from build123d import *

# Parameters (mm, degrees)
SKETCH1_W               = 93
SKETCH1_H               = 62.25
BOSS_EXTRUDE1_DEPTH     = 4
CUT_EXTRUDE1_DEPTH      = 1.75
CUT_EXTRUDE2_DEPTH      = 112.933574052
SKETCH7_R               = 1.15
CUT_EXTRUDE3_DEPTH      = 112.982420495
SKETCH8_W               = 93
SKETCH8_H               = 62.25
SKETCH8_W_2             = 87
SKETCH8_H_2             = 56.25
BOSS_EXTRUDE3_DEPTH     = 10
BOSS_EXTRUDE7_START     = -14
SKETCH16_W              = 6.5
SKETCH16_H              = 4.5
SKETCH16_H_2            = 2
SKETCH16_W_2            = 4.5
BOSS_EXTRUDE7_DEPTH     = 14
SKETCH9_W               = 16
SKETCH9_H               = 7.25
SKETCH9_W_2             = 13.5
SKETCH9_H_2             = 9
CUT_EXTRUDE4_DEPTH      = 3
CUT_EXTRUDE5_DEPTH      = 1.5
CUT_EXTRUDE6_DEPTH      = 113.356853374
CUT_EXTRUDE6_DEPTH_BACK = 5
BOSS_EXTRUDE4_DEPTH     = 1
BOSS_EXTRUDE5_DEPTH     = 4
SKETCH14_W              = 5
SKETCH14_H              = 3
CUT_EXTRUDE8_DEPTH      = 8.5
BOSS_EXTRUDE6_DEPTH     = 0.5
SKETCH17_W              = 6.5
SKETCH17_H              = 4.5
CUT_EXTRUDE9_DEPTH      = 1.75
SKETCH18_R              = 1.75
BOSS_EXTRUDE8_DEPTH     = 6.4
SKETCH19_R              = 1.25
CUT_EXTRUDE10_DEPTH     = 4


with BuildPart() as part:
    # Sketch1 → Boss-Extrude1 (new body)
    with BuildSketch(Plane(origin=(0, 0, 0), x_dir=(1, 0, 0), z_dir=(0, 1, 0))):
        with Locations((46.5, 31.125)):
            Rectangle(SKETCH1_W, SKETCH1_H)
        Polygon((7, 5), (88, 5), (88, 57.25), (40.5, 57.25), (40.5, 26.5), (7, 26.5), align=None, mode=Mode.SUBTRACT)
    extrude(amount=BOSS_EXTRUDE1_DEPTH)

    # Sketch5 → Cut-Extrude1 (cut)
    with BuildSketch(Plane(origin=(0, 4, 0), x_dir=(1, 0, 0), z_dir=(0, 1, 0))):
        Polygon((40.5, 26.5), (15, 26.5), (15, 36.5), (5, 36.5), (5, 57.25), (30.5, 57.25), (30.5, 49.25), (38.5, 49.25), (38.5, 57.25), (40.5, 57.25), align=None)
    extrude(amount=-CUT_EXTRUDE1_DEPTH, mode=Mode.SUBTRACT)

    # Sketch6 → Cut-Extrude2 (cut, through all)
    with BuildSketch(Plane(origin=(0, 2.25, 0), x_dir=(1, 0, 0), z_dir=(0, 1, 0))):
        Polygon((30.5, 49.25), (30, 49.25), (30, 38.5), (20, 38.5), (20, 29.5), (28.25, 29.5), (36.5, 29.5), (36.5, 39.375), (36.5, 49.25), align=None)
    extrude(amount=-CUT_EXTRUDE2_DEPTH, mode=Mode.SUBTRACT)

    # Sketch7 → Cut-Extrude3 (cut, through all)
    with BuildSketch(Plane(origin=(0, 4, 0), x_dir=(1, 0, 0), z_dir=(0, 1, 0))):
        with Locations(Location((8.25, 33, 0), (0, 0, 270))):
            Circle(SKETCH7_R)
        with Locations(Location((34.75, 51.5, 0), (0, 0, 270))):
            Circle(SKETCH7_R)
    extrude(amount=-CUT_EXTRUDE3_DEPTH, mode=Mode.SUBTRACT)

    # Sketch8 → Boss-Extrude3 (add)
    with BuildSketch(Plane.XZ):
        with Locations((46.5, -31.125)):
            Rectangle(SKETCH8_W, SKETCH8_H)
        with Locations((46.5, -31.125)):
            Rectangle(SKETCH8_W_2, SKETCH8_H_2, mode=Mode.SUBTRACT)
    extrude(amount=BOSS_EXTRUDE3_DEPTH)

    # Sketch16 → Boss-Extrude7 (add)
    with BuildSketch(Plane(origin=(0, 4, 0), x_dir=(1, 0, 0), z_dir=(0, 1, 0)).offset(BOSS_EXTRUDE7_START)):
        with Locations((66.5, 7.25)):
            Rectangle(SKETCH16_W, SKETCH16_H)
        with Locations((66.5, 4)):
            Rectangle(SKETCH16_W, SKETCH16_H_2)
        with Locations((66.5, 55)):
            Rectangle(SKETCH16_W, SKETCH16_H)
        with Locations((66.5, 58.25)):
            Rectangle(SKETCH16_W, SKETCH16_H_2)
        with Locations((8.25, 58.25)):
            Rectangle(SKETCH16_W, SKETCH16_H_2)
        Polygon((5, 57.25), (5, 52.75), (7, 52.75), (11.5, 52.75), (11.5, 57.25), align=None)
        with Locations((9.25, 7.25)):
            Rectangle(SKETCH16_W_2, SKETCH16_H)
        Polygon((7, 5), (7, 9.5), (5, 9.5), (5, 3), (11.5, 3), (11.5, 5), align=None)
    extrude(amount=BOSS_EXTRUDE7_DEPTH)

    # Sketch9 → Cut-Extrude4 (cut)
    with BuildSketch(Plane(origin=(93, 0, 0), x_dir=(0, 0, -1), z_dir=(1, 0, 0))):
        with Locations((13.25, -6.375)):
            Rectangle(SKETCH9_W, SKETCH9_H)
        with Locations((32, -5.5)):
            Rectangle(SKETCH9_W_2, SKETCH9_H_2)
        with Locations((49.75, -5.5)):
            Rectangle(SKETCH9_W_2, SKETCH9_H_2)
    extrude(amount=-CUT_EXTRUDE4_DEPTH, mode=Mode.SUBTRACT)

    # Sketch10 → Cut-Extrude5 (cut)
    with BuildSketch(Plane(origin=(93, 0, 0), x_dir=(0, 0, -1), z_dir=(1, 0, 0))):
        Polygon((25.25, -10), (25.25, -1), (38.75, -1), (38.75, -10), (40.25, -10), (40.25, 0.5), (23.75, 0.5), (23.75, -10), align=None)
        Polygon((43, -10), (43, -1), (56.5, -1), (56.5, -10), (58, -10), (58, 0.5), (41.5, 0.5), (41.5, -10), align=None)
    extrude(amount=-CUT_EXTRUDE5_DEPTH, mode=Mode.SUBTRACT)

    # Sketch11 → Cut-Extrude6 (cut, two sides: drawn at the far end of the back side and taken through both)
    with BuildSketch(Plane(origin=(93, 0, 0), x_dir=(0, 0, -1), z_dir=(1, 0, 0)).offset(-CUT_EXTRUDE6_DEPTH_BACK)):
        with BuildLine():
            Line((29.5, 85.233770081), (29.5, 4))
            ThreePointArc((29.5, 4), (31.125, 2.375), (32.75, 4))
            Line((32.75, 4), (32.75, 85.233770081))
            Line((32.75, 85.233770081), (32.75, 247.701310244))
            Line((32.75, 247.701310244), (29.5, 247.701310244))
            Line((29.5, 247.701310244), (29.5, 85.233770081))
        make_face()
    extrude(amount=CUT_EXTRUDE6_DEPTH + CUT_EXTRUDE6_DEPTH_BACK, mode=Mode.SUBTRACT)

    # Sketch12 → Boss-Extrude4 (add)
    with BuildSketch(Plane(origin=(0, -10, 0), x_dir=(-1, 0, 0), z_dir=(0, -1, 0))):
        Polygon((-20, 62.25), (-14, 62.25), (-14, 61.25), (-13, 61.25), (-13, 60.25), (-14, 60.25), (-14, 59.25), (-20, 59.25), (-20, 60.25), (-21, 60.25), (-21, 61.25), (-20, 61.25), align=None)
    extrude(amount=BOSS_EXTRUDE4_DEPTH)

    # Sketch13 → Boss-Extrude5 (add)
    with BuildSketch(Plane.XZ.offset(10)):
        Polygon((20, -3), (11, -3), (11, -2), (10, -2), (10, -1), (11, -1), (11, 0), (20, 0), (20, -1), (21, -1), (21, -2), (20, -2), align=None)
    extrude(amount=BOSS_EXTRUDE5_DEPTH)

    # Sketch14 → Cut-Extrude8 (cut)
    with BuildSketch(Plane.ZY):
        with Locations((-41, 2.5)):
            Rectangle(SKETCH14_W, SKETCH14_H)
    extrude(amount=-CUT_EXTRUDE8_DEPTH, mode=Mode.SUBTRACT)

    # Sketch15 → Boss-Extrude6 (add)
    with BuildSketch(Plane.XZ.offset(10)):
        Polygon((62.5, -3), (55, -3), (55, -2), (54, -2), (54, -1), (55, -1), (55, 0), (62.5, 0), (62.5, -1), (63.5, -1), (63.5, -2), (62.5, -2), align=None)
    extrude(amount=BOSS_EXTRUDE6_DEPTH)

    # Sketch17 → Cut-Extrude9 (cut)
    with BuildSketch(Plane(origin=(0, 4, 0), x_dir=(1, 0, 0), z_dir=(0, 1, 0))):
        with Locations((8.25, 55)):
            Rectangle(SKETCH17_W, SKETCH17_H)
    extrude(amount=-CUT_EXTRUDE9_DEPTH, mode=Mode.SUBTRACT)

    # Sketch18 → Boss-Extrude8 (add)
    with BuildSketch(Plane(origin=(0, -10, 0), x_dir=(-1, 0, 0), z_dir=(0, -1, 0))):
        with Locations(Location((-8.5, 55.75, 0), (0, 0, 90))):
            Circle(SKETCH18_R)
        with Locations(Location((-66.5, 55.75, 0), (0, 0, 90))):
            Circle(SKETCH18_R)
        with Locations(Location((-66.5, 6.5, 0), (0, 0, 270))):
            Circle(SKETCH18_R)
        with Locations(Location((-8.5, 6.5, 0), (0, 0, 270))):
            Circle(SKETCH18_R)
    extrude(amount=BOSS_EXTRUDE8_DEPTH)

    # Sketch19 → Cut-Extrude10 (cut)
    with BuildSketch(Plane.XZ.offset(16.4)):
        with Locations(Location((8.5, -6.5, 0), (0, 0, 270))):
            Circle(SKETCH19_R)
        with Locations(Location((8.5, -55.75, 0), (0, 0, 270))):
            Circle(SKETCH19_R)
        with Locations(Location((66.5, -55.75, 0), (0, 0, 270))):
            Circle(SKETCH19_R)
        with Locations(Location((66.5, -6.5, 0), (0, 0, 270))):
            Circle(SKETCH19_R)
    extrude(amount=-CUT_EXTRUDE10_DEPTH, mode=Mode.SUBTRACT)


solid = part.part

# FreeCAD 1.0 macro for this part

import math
import FreeCAD as App
import Part
import Sketcher

V = App.Vector

doc = App.newDocument("Part")
body = doc.addObject("PartDesign::Body", "Body")

sketch1 = body.newObject("Sketcher::SketchObject", "Sketch")
sketch1.AttachmentSupport = (doc.getObject("XZ_Plane"), [""])
sketch1.MapMode = "FlatFace"
sketch1.addGeometry([
    Part.LineSegment(V(0, -62, 0), V(0, 0, 0)),
    Part.LineSegment(V(0, 0, 0), V(93, 0, 0)),
    Part.LineSegment(V(93, 0, 0), V(93, -62, 0)),
    Part.LineSegment(V(93, -62, 0), V(0, -62, 0)),
    Part.LineSegment(V(88, -5, 0), V(7, -5, 0)),
    Part.LineSegment(V(7, -5, 0), V(7, -26, 0)),
    Part.LineSegment(V(7, -26, 0), V(40, -26, 0)),
    Part.LineSegment(V(40, -26, 0), V(40, -57, 0)),
    Part.LineSegment(V(40, -57, 0), V(88, -57, 0)),
    Part.LineSegment(V(88, -57, 0), V(88, -5, 0)),
], False)
sketch1.addConstraint([
    Sketcher.Constraint("Coincident", 0, 2, 1, 1),
    Sketcher.Constraint("Coincident", 1, 2, 2, 1),
    Sketcher.Constraint("Coincident", 2, 2, 3, 1),
    Sketcher.Constraint("Coincident", 3, 2, 0, 1),
    Sketcher.Constraint("Coincident", 4, 2, 5, 1),
    Sketcher.Constraint("Coincident", 5, 2, 6, 1),
    Sketcher.Constraint("Coincident", 6, 2, 7, 1),
    Sketcher.Constraint("Coincident", 7, 2, 8, 1),
    Sketcher.Constraint("Coincident", 8, 2, 9, 1),
    Sketcher.Constraint("Coincident", 9, 2, 4, 1),
    Sketcher.Constraint("Vertical", 0),
    Sketcher.Constraint("Horizontal", 1),
    Sketcher.Constraint("Vertical", 2),
    Sketcher.Constraint("Horizontal", 3),
    Sketcher.Constraint("Horizontal", 4),
    Sketcher.Constraint("Vertical", 5),
    Sketcher.Constraint("Horizontal", 6),
    Sketcher.Constraint("Vertical", 7),
    Sketcher.Constraint("Horizontal", 8),
    Sketcher.Constraint("Vertical", 9),
    Sketcher.Constraint("Coincident", 0, 2, -1, 1),
    Sketcher.Constraint("DistanceX", 1, 1, 1, 2, 93.0),
    Sketcher.Constraint("DistanceX", 4, 2, 4, 1, 81.0),
    Sketcher.Constraint("DistanceX", 6, 1, 6, 2, 33.5),
    Sketcher.Constraint("DistanceY", 5, 2, 5, 1, 21.5),
    Sketcher.Constraint("DistanceX", -1, 1, 4, 2, 7.0),
    Sketcher.Constraint("DistanceY", 4, 2, -1, 1, 5.0),
    Sketcher.Constraint("DistanceY", 3, 2, 7, 2, 5.0),
    Sketcher.Constraint("DistanceY", 0, 1, 0, 2, 62.25),
])
pad1 = body.newObject("PartDesign::Pad", "Pad")
pad1.Profile = sketch1
pad1.Length = 4
pad1.Reversed = True

sketch2 = body.newObject("Sketcher::SketchObject", "Sketch001")
sketch2.AttachmentSupport = (doc.getObject("XZ_Plane"), [""])
sketch2.MapMode = "FlatFace"
sketch2.AttachmentOffset = App.Placement(V(0, 0, -4), App.Rotation())
sketch2.addGeometry([
    Part.LineSegment(V(15, -26.5, 0), V(40.5, -26.5, 0)),
    Part.LineSegment(V(40.5, -26.5, 0), V(40.5, -57.2, 0)),
    Part.LineSegment(V(40.5, -57.2, 0), V(38.5, -57.2, 0)),
    Part.LineSegment(V(38.5, -57.2, 0), V(38.5, -49.2, 0)),
    Part.LineSegment(V(38.5, -49.2, 0), V(30.5, -49.2, 0)),
    Part.LineSegment(V(30.5, -49.2, 0), V(30.5, -57.2, 0)),
    Part.LineSegment(V(30.5, -57.2, 0), V(5, -57.2, 0)),
    Part.LineSegment(V(5, -57.2, 0), V(5, -36.5, 0)),
    Part.LineSegment(V(5, -36.5, 0), V(15, -36.5, 0)),
    Part.LineSegment(V(15, -36.5, 0), V(15, -26.5, 0)),
], False)
sketch2.addConstraint([
    Sketcher.Constraint("Coincident", 0, 2, 1, 1),
    Sketcher.Constraint("Coincident", 1, 2, 2, 1),
    Sketcher.Constraint("Coincident", 2, 2, 3, 1),
    Sketcher.Constraint("Coincident", 3, 2, 4, 1),
    Sketcher.Constraint("Coincident", 4, 2, 5, 1),
    Sketcher.Constraint("Coincident", 5, 2, 6, 1),
    Sketcher.Constraint("Coincident", 6, 2, 7, 1),
    Sketcher.Constraint("Coincident", 7, 2, 8, 1),
    Sketcher.Constraint("Coincident", 8, 2, 9, 1),
    Sketcher.Constraint("Coincident", 9, 2, 0, 1),
    Sketcher.Constraint("Horizontal", 0),
    Sketcher.Constraint("Vertical", 1),
    Sketcher.Constraint("Horizontal", 2),
    Sketcher.Constraint("Vertical", 3),
    Sketcher.Constraint("Horizontal", 4),
    Sketcher.Constraint("Vertical", 5),
    Sketcher.Constraint("Horizontal", 6),
    Sketcher.Constraint("Vertical", 7),
    Sketcher.Constraint("Horizontal", 8),
    Sketcher.Constraint("Vertical", 9),
    Sketcher.Constraint("Horizontal", 2, 2, 5, 2),
    Sketcher.Constraint("Equal", 0, 6),
    Sketcher.Constraint("Equal", 4, 3),
    Sketcher.Constraint("Equal", 8, 9),
    Sketcher.Constraint("DistanceX", 2, 2, 2, 1, 2.0),
    Sketcher.Constraint("DistanceX", 4, 2, 4, 1, 8.0),
    Sketcher.Constraint("DistanceX", 0, 1, 0, 2, 25.5),
    Sketcher.Constraint("DistanceX", -1, 1, 6, 2, 5.0),
    Sketcher.Constraint("DistanceY", 1, 2, 1, 1, 30.75),
    Sketcher.Constraint("DistanceY", 0, 2, -1, 1, 26.5),
])
pocket1 = body.newObject("PartDesign::Pocket", "Pocket")
pocket1.Profile = sketch2
pocket1.Length = 1.75
pocket1.Reversed = True

sketch3 = body.newObject("Sketcher::SketchObject", "Sketch002")
sketch3.AttachmentSupport = (doc.getObject("XZ_Plane"), [""])
sketch3.MapMode = "FlatFace"
sketch3.AttachmentOffset = App.Placement(V(0, 0, -2.25), App.Rotation())
sketch3.addGeometry([
    Part.LineSegment(V(30, -49, 0), V(30, -38, 0)),
    Part.LineSegment(V(30, -38, 0), V(20, -38, 0)),
    Part.LineSegment(V(20, -38, 0), V(20, -30, 0)),
    Part.LineSegment(V(20, -30, 0), V(36, -30, 0)),
    Part.LineSegment(V(36, -30, 0), V(36, -49, 0)),
    Part.LineSegment(V(36, -49, 0), V(30, -49, 0)),
], False)
sketch3.addConstraint([
    Sketcher.Constraint("Coincident", 0, 2, 1, 1),
    Sketcher.Constraint("Coincident", 1, 2, 2, 1),
    Sketcher.Constraint("Coincident", 2, 2, 3, 1),
    Sketcher.Constraint("Coincident", 3, 2, 4, 1),
    Sketcher.Constraint("Coincident", 4, 2, 5, 1),
    Sketcher.Constraint("Coincident", 5, 2, 0, 1),
    Sketcher.Constraint("Vertical", 0),
    Sketcher.Constraint("Horizontal", 1),
    Sketcher.Constraint("Vertical", 2),
    Sketcher.Constraint("Horizontal", 3),
    Sketcher.Constraint("Vertical", 4),
    Sketcher.Constraint("Horizontal", 5),
    Sketcher.Constraint("DistanceX", 1, 2, 1, 1, 10.0),
    Sketcher.Constraint("DistanceY", 2, 1, 2, 2, 9.0),
    Sketcher.Constraint("DistanceX", 3, 1, 3, 2, 16.5),
    Sketcher.Constraint("DistanceX", -1, 1, 0, 2, 30.0),
    Sketcher.Constraint("DistanceY", 0, 1, 0, 2, 10.75),
    Sketcher.Constraint("DistanceY", 0, 2, -1, 1, 38.5),
])
pocket2 = body.newObject("PartDesign::Pocket", "Pocket001")
pocket2.Profile = sketch3
pocket2.Type = "ThroughAll"
pocket2.Reversed = True

sketch4 = body.newObject("Sketcher::SketchObject", "Sketch003")
sketch4.AttachmentSupport = (doc.getObject("XZ_Plane"), [""])
sketch4.MapMode = "FlatFace"
sketch4.AttachmentOffset = App.Placement(V(0, 0, -4), App.Rotation())
sketch4.addGeometry([
    Part.Circle(V(8.2, -33, 0), V(0, 0, 1), 1.1),
    Part.Circle(V(34.8, -51.5, 0), V(0, 0, 1), 1.1),
], False)
sketch4.addConstraint([
    Sketcher.Constraint("Equal", 0, 1),
    Sketcher.Constraint("Diameter", 0, 2.3),
    Sketcher.Constraint("DistanceY", 0, 3, -1, 1, 33.0),
    Sketcher.Constraint("DistanceY", 1, 3, -1, 1, 51.5),
    Sketcher.Constraint("DistanceX", 0, 3, 1, 3, 26.5),
    Sketcher.Constraint("DistanceX", -1, 1, 0, 3, 8.25),
])
pocket3 = body.newObject("PartDesign::Pocket", "Pocket002")
pocket3.Profile = sketch4
pocket3.Type = "ThroughAll"
pocket3.Reversed = True

sketch5 = body.newObject("Sketcher::SketchObject", "Sketch004")
sketch5.AttachmentSupport = (doc.getObject("XZ_Plane"), [""])
sketch5.MapMode = "FlatFace"
sketch5.addGeometry([
    Part.LineSegment(V(0, 0, 0), V(0, -62, 0)),
    Part.LineSegment(V(0, -62, 0), V(93, -62, 0)),
    Part.LineSegment(V(93, -62, 0), V(93, 0, 0)),
    Part.LineSegment(V(93, 0, 0), V(0, 0, 0)),
    Part.LineSegment(V(90, -59, 0), V(3, -59, 0)),
    Part.LineSegment(V(3, -59, 0), V(3, -3, 0)),
    Part.LineSegment(V(3, -3, 0), V(90, -3, 0)),
    Part.LineSegment(V(90, -3, 0), V(90, -59, 0)),
], False)
sketch5.addConstraint([
    Sketcher.Constraint("Coincident", 0, 2, 1, 1),
    Sketcher.Constraint("Coincident", 1, 2, 2, 1),
    Sketcher.Constraint("Coincident", 2, 2, 3, 1),
    Sketcher.Constraint("Coincident", 3, 2, 0, 1),
    Sketcher.Constraint("Coincident", 4, 2, 5, 1),
    Sketcher.Constraint("Coincident", 5, 2, 6, 1),
    Sketcher.Constraint("Coincident", 6, 2, 7, 1),
    Sketcher.Constraint("Coincident", 7, 2, 4, 1),
    Sketcher.Constraint("Vertical", 0),
    Sketcher.Constraint("Horizontal", 1),
    Sketcher.Constraint("Vertical", 2),
    Sketcher.Constraint("Horizontal", 3),
    Sketcher.Constraint("Horizontal", 4),
    Sketcher.Constraint("Vertical", 5),
    Sketcher.Constraint("Horizontal", 6),
    Sketcher.Constraint("Vertical", 7),
    Sketcher.Constraint("Coincident", 3, 2, -1, 1),
    Sketcher.Constraint("DistanceX", 1, 1, 1, 2, 93.0),
    Sketcher.Constraint("DistanceX", 4, 2, 4, 1, 87.0),
    Sketcher.Constraint("DistanceX", -1, 1, 4, 2, 3.0),
    Sketcher.Constraint("DistanceY", 5, 2, -1, 1, 3.0),
    Sketcher.Constraint("DistanceY", 0, 2, 4, 2, 3.0),
    Sketcher.Constraint("DistanceY", 0, 2, 0, 1, 62.25),
])
pad2 = body.newObject("PartDesign::Pad", "Pad001")
pad2.Profile = sketch5
pad2.Length = 10

sketch6 = body.newObject("Sketcher::SketchObject", "Sketch005")
sketch6.AttachmentSupport = (doc.getObject("XZ_Plane"), [""])
sketch6.MapMode = "FlatFace"
sketch6.AttachmentOffset = App.Placement(V(0, 0, 10), App.Rotation())
sketch6.addGeometry([
    Part.LineSegment(V(63, -10, 0), V(63, -3, 0)),
    Part.LineSegment(V(63, -3, 0), V(70, -3, 0)),
    Part.LineSegment(V(70, -3, 0), V(70, -10, 0)),
    Part.LineSegment(V(70, -10, 0), V(63, -10, 0)),
    Part.LineSegment(V(63, -53, 0), V(70, -53, 0)),
    Part.LineSegment(V(70, -53, 0), V(70, -59, 0)),
    Part.LineSegment(V(70, -59, 0), V(63, -59, 0)),
    Part.LineSegment(V(63, -59, 0), V(63, -53, 0)),
    Part.LineSegment(V(5, -59, 0), V(5, -53, 0)),
    Part.LineSegment(V(5, -53, 0), V(12, -53, 0)),
    Part.LineSegment(V(12, -53, 0), V(12, -59, 0)),
    Part.LineSegment(V(12, -59, 0), V(5, -59, 0)),
    Part.LineSegment(V(12, -10, 0), V(5, -10, 0)),
    Part.LineSegment(V(5, -10, 0), V(5, -3, 0)),
    Part.LineSegment(V(5, -3, 0), V(12, -3, 0)),
    Part.LineSegment(V(12, -3, 0), V(12, -10, 0)),
], False)
sketch6.addConstraint([
    Sketcher.Constraint("Coincident", 0, 2, 1, 1),
    Sketcher.Constraint("Coincident", 1, 2, 2, 1),
    Sketcher.Constraint("Coincident", 2, 2, 3, 1),
    Sketcher.Constraint("Coincident", 3, 2, 0, 1),
    Sketcher.Constraint("Coincident", 4, 2, 5, 1),
    Sketcher.Constraint("Coincident", 5, 2, 6, 1),
    Sketcher.Constraint("Coincident", 6, 2, 7, 1),
    Sketcher.Constraint("Coincident", 7, 2, 4, 1),
    Sketcher.Constraint("Coincident", 8, 2, 9, 1),
    Sketcher.Constraint("Coincident", 9, 2, 10, 1),
    Sketcher.Constraint("Coincident", 10, 2, 11, 1),
    Sketcher.Constraint("Coincident", 11, 2, 8, 1),
    Sketcher.Constraint("Coincident", 12, 2, 13, 1),
    Sketcher.Constraint("Coincident", 13, 2, 14, 1),
    Sketcher.Constraint("Coincident", 14, 2, 15, 1),
    Sketcher.Constraint("Coincident", 15, 2, 12, 1),
    Sketcher.Constraint("Vertical", 0),
    Sketcher.Constraint("Horizontal", 1),
    Sketcher.Constraint("Vertical", 2),
    Sketcher.Constraint("Horizontal", 3),
    Sketcher.Constraint("Horizontal", 4),
    Sketcher.Constraint("Vertical", 5),
    Sketcher.Constraint("Horizontal", 6),
    Sketcher.Constraint("Vertical", 7),
    Sketcher.Constraint("Vertical", 8),
    Sketcher.Constraint("Horizontal", 9),
    Sketcher.Constraint("Vertical", 10),
    Sketcher.Constraint("Horizontal", 11),
    Sketcher.Constraint("Horizontal", 12),
    Sketcher.Constraint("Vertical", 13),
    Sketcher.Constraint("Horizontal", 14),
    Sketcher.Constraint("Vertical", 15),
    Sketcher.Constraint("Horizontal", 7, 2, 8, 2),
    Sketcher.Constraint("Horizontal", 6, 2, 10, 2),
    Sketcher.Constraint("Horizontal", 3, 2, 12, 2),
    Sketcher.Constraint("Horizontal", 1, 2, 13, 2),
    Sketcher.Constraint("Vertical", 2, 2, 4, 2),
    Sketcher.Constraint("Vertical", 3, 2, 6, 2),
    Sketcher.Constraint("Vertical", 11, 2, 12, 2),
    Sketcher.Constraint("Vertical", 10, 2, 14, 2),
    Sketcher.Constraint("Equal", 6, 9),
    Sketcher.Constraint("Equal", 14, 0),
    Sketcher.Constraint("Equal", 2, 5),
    Sketcher.Constraint("DistanceX", 1, 1, 1, 2, 6.5),
    Sketcher.Constraint("DistanceY", 0, 2, -1, 1, 3.0),
    Sketcher.Constraint("DistanceX", -1, 1, 8, 2, 5.0),
    Sketcher.Constraint("DistanceX", -1, 1, 0, 2, 63.25),
    Sketcher.Constraint("DistanceY", 4, 2, -1, 1, 52.75),
])
pad3 = body.newObject("PartDesign::Pad", "Pad002")
pad3.Profile = sketch6
pad3.Length = 14
pad3.Reversed = True

sketch7 = body.newObject("Sketcher::SketchObject", "Sketch006")
sketch7.AttachmentSupport = (doc.getObject("YZ_Plane"), [""])
sketch7.MapMode = "FlatFace"
sketch7.AttachmentOffset = App.Placement(V(0, 0, 93), App.Rotation())
sketch7.addGeometry([
    Part.LineSegment(V(-3, -5, 0), V(-10, -5, 0)),
    Part.LineSegment(V(-10, -5, 0), V(-10, -21, 0)),
    Part.LineSegment(V(-10, -21, 0), V(-3, -21, 0)),
    Part.LineSegment(V(-3, -21, 0), V(-3, -5, 0)),
    Part.LineSegment(V(-1, -25, 0), V(-10, -25, 0)),
    Part.LineSegment(V(-10, -25, 0), V(-10, -39, 0)),
    Part.LineSegment(V(-10, -39, 0), V(-1, -39, 0)),
    Part.LineSegment(V(-1, -39, 0), V(-1, -25, 0)),
    Part.LineSegment(V(-1, -43, 0), V(-10, -43, 0)),
    Part.LineSegment(V(-10, -43, 0), V(-10, -56, 0)),
    Part.LineSegment(V(-10, -56, 0), V(-1, -56, 0)),
    Part.LineSegment(V(-1, -56, 0), V(-1, -43, 0)),
], False)
sketch7.addConstraint([
    Sketcher.Constraint("Coincident", 0, 2, 1, 1),
    Sketcher.Constraint("Coincident", 1, 2, 2, 1),
    Sketcher.Constraint("Coincident", 2, 2, 3, 1),
    Sketcher.Constraint("Coincident", 3, 2, 0, 1),
    Sketcher.Constraint("Coincident", 4, 2, 5, 1),
    Sketcher.Constraint("Coincident", 5, 2, 6, 1),
    Sketcher.Constraint("Coincident", 6, 2, 7, 1),
    Sketcher.Constraint("Coincident", 7, 2, 4, 1),
    Sketcher.Constraint("Coincident", 8, 2, 9, 1),
    Sketcher.Constraint("Coincident", 9, 2, 10, 1),
    Sketcher.Constraint("Coincident", 10, 2, 11, 1),
    Sketcher.Constraint("Coincident", 11, 2, 8, 1),
    Sketcher.Constraint("Horizontal", 0),
    Sketcher.Constraint("Vertical", 1),
    Sketcher.Constraint("Horizontal", 2),
    Sketcher.Constraint("Vertical", 3),
    Sketcher.Constraint("Horizontal", 4),
    Sketcher.Constraint("Vertical", 5),
    Sketcher.Constraint("Horizontal", 6),
    Sketcher.Constraint("Vertical", 7),
    Sketcher.Constraint("Horizontal", 8),
    Sketcher.Constraint("Vertical", 9),
    Sketcher.Constraint("Horizontal", 10),
    Sketcher.Constraint("Vertical", 11),
    Sketcher.Constraint("Vertical", 1, 2, 4, 2),
    Sketcher.Constraint("Vertical", 5, 2, 8, 2),
    Sketcher.Constraint("Vertical", 7, 2, 10, 2),
    Sketcher.Constraint("Equal", 7, 9),
    Sketcher.Constraint("DistanceX", 4, 2, 4, 1, 9.0),
    Sketcher.Constraint("DistanceY", 1, 2, 1, 1, 16.0),
    Sketcher.Constraint("DistanceY", 5, 2, 5, 1, 13.5),
    Sketcher.Constraint("DistanceX", 0, 2, -1, 1, 10.0),
    Sketcher.Constraint("DistanceY", 8, 2, -1, 1, 43.0),
    Sketcher.Constraint("DistanceY", 4, 2, 1, 2, 4.0),
    Sketcher.Constraint("DistanceX", 0, 2, 0, 1, 7.25),
    Sketcher.Constraint("DistanceY", 0, 2, -1, 1, 5.25),
])
pocket4 = body.newObject("PartDesign::Pocket", "Pocket003")
pocket4.Profile = sketch7
pocket4.Length = 3

sketch8 = body.newObject("Sketcher::SketchObject", "Sketch007")
sketch8.AttachmentSupport = (doc.getObject("YZ_Plane"), [""])
sketch8.MapMode = "FlatFace"
sketch8.AttachmentOffset = App.Placement(V(0, 0, 93), App.Rotation())
sketch8.addGeometry([
    Part.LineSegment(V(-10, -25.2, 0), V(-1, -25.2, 0)),
    Part.LineSegment(V(-1, -25.2, 0), V(-1, -38.8, 0)),
    Part.LineSegment(V(-1, -38.8, 0), V(-10, -38.8, 0)),
    Part.LineSegment(V(-10, -38.8, 0), V(-10, -40.2, 0)),
    Part.LineSegment(V(-10, -40.2, 0), V(0.5, -40.2, 0)),
    Part.LineSegment(V(0.5, -40.2, 0), V(0.5, -23.8, 0)),
    Part.LineSegment(V(0.5, -23.8, 0), V(-10, -23.8, 0)),
    Part.LineSegment(V(-10, -23.8, 0), V(-10, -25.2, 0)),
    Part.LineSegment(V(-10, -43, 0), V(-1, -43, 0)),
    Part.LineSegment(V(-1, -43, 0), V(-1, -56.5, 0)),
    Part.LineSegment(V(-1, -56.5, 0), V(-10, -56.5, 0)),
    Part.LineSegment(V(-10, -56.5, 0), V(-10, -58, 0)),
    Part.LineSegment(V(-10, -58, 0), V(0.5, -58, 0)),
    Part.LineSegment(V(0.5, -58, 0), V(0.5, -41.5, 0)),
    Part.LineSegment(V(0.5, -41.5, 0), V(-10, -41.5, 0)),
    Part.LineSegment(V(-10, -41.5, 0), V(-10, -43, 0)),
], False)
sketch8.addConstraint([
    Sketcher.Constraint("Coincident", 0, 2, 1, 1),
    Sketcher.Constraint("Coincident", 1, 2, 2, 1),
    Sketcher.Constraint("Coincident", 2, 2, 3, 1),
    Sketcher.Constraint("Coincident", 3, 2, 4, 1),
    Sketcher.Constraint("Coincident", 4, 2, 5, 1),
    Sketcher.Constraint("Coincident", 5, 2, 6, 1),
    Sketcher.Constraint("Coincident", 6, 2, 7, 1),
    Sketcher.Constraint("Coincident", 7, 2, 0, 1),
    Sketcher.Constraint("Coincident", 8, 2, 9, 1),
    Sketcher.Constraint("Coincident", 9, 2, 10, 1),
    Sketcher.Constraint("Coincident", 10, 2, 11, 1),
    Sketcher.Constraint("Coincident", 11, 2, 12, 1),
    Sketcher.Constraint("Coincident", 12, 2, 13, 1),
    Sketcher.Constraint("Coincident", 13, 2, 14, 1),
    Sketcher.Constraint("Coincident", 14, 2, 15, 1),
    Sketcher.Constraint("Coincident", 15, 2, 8, 1),
    Sketcher.Constraint("Horizontal", 0),
    Sketcher.Constraint("Vertical", 1),
    Sketcher.Constraint("Horizontal", 2),
    Sketcher.Constraint("Vertical", 3),
    Sketcher.Constraint("Horizontal", 4),
    Sketcher.Constraint("Vertical", 5),
    Sketcher.Constraint("Horizontal", 6),
    Sketcher.Constraint("Vertical", 7),
    Sketcher.Constraint("Horizontal", 8),
    Sketcher.Constraint("Vertical", 9),
    Sketcher.Constraint("Horizontal", 10),
    Sketcher.Constraint("Vertical", 11),
    Sketcher.Constraint("Horizontal", 12),
    Sketcher.Constraint("Vertical", 13),
    Sketcher.Constraint("Horizontal", 14),
    Sketcher.Constraint("Vertical", 15),
    Sketcher.Constraint("Vertical", 3, 2, 6, 2),
    Sketcher.Constraint("Vertical", 1, 2, 8, 2),
    Sketcher.Constraint("Vertical", 7, 2, 10, 2),
    Sketcher.Constraint("Vertical", 5, 2, 12, 2),
    Sketcher.Constraint("Vertical", 11, 2, 14, 2),
    Sketcher.Constraint("Equal", 3, 7),
    Sketcher.Constraint("Equal", 1, 9),
    Sketcher.Constraint("Equal", 7, 11),
    Sketcher.Constraint("Equal", 5, 13),
    Sketcher.Constraint("DistanceX", 0, 1, 0, 2, 9.0),
    Sketcher.Constraint("DistanceX", 4, 1, 4, 2, 10.5),
    Sketcher.Constraint("DistanceY", 1, 2, 1, 1, 13.5),
    Sketcher.Constraint("DistanceY", 3, 2, 3, 1, 1.5),
    Sketcher.Constraint("DistanceX", 0, 2, -1, 1, 1.0),
    Sketcher.Constraint("DistanceY", 8, 2, -1, 1, 43.0),
    Sketcher.Constraint("DistanceY", 0, 2, -1, 1, 25.25),
])
pocket5 = body.newObject("PartDesign::Pocket", "Pocket004")
pocket5.Profile = sketch8
pocket5.Length = 1.5

sketch9 = body.newObject("Sketcher::SketchObject", "Sketch008")
sketch9.AttachmentSupport = (doc.getObject("YZ_Plane"), [""])
sketch9.MapMode = "FlatFace"
sketch9.AttachmentOffset = App.Placement(V(0, 0, 93), App.Rotation())
sketch9.addGeometry([
    Part.ArcOfCircle(Part.Circle(V(4, -31.1, 0), V(0, 0, 1), 1.6), math.radians(90), math.radians(270)),
    Part.LineSegment(V(4, -32.8, 0), V(247.7, -32.8, 0)),
    Part.LineSegment(V(247.7, -32.8, 0), V(247.7, -29.5, 0)),
    Part.LineSegment(V(247.7, -29.5, 0), V(4, -29.5, 0)),
], False)
sketch9.addConstraint([
    Sketcher.Constraint("Tangent", 0, 2, 1, 1),
    Sketcher.Constraint("Coincident", 1, 2, 2, 1),
    Sketcher.Constraint("Coincident", 2, 2, 3, 1),
    Sketcher.Constraint("Tangent", 3, 2, 0, 1),
    Sketcher.Constraint("Horizontal", 1),
    Sketcher.Constraint("Vertical", 2),
    Sketcher.Constraint("Horizontal", 3),
    Sketcher.Constraint("DistanceX", -1, 1, 0, 3, 4.0),
    Sketcher.Constraint("Radius", 0, 1.625),
    Sketcher.Constraint("DistanceY", 2, 2, -1, 1, 29.5),
    Sketcher.Constraint("DistanceX", 1, 1, 1, 2, 243.70131),
])
pocket6 = body.newObject("PartDesign::Pocket", "Pocket005")
pocket6.Profile = sketch9
pocket6.Type = "TwoLengths"
pocket6.Length = 113.356853
pocket6.Length2 = 5
pocket6.Reversed = True

sketch10 = body.newObject("Sketcher::SketchObject", "Sketch009")
sketch10.AttachmentSupport = (doc.getObject("XZ_Plane"), [""])
sketch10.MapMode = "FlatFace"
sketch10.AttachmentOffset = App.Placement(V(0, 0, 10), App.Rotation())
sketch10.addGeometry([
    Part.LineSegment(V(14, -62.2, 0), V(20, -62.2, 0)),
    Part.LineSegment(V(20, -62.2, 0), V(20, -61.2, 0)),
    Part.LineSegment(V(20, -61.2, 0), V(21, -61.2, 0)),
    Part.LineSegment(V(21, -61.2, 0), V(21, -60.2, 0)),
    Part.LineSegment(V(21, -60.2, 0), V(20, -60.2, 0)),
    Part.LineSegment(V(20, -60.2, 0), V(20, -59.2, 0)),
    Part.LineSegment(V(20, -59.2, 0), V(14, -59.2, 0)),
    Part.LineSegment(V(14, -59.2, 0), V(14, -60.2, 0)),
    Part.LineSegment(V(14, -60.2, 0), V(13, -60.2, 0)),
    Part.LineSegment(V(13, -60.2, 0), V(13, -61.2, 0)),
    Part.LineSegment(V(13, -61.2, 0), V(14, -61.2, 0)),
    Part.LineSegment(V(14, -61.2, 0), V(14, -62.2, 0)),
], False)
sketch10.addConstraint([
    Sketcher.Constraint("Coincident", 0, 2, 1, 1),
    Sketcher.Constraint("Coincident", 1, 2, 2, 1),
    Sketcher.Constraint("Coincident", 2, 2, 3, 1),
    Sketcher.Constraint("Coincident", 3, 2, 4, 1),
    Sketcher.Constraint("Coincident", 4, 2, 5, 1),
    Sketcher.Constraint("Coincident", 5, 2, 6, 1),
    Sketcher.Constraint("Coincident", 6, 2, 7, 1),
    Sketcher.Constraint("Coincident", 7, 2, 8, 1),
    Sketcher.Constraint("Coincident", 8, 2, 9, 1),
    Sketcher.Constraint("Coincident", 9, 2, 10, 1),
    Sketcher.Constraint("Coincident", 10, 2, 11, 1),
    Sketcher.Constraint("Coincident", 11, 2, 0, 1),
    Sketcher.Constraint("Horizontal", 0),
    Sketcher.Constraint("Vertical", 1),
    Sketcher.Constraint("Horizontal", 2),
    Sketcher.Constraint("Vertical", 3),
    Sketcher.Constraint("Horizontal", 4),
    Sketcher.Constraint("Vertical", 5),
    Sketcher.Constraint("Horizontal", 6),
    Sketcher.Constraint("Vertical", 7),
    Sketcher.Constraint("Horizontal", 8),
    Sketcher.Constraint("Vertical", 9),
    Sketcher.Constraint("Horizontal", 10),
    Sketcher.Constraint("Vertical", 11),
    Sketcher.Constraint("Horizontal", 4, 2, 7, 2),
    Sketcher.Constraint("Horizontal", 2, 2, 9, 2),
    Sketcher.Constraint("Vertical", 1, 2, 4, 2),
    Sketcher.Constraint("Vertical", 7, 2, 10, 2),
    Sketcher.Constraint("Equal", 4, 8),
    Sketcher.Constraint("Equal", 10, 1),
    Sketcher.Constraint("Equal", 1, 3),
    Sketcher.Constraint("Equal", 3, 5),
    Sketcher.Constraint("DistanceX", 0, 1, 0, 2, 6.0),
    Sketcher.Constraint("DistanceX", 2, 1, 2, 2, 1.0),
    Sketcher.Constraint("DistanceX", -1, 1, 0, 2, 20.0),
    Sketcher.Constraint("DistanceY", 0, 2, -1, 1, 62.25),
])
pad4 = body.newObject("PartDesign::Pad", "Pad003")
pad4.Profile = sketch10
pad4.Length = 1

sketch11 = body.newObject("Sketcher::SketchObject", "Sketch010")
sketch11.AttachmentSupport = (doc.getObject("XZ_Plane"), [""])
sketch11.MapMode = "FlatFace"
sketch11.AttachmentOffset = App.Placement(V(0, 0, 10), App.Rotation())
sketch11.addGeometry([
    Part.LineSegment(V(11, -3, 0), V(20, -3, 0)),
    Part.LineSegment(V(20, -3, 0), V(20, -2, 0)),
    Part.LineSegment(V(20, -2, 0), V(21, -2, 0)),
    Part.LineSegment(V(21, -2, 0), V(21, -1, 0)),
    Part.LineSegment(V(21, -1, 0), V(20, -1, 0)),
    Part.LineSegment(V(20, -1, 0), V(20, 0, 0)),
    Part.LineSegment(V(20, 0, 0), V(11, 0, 0)),
    Part.LineSegment(V(11, 0, 0), V(11, -1, 0)),
    Part.LineSegment(V(11, -1, 0), V(10, -1, 0)),
    Part.LineSegment(V(10, -1, 0), V(10, -2, 0)),
    Part.LineSegment(V(10, -2, 0), V(11, -2, 0)),
    Part.LineSegment(V(11, -2, 0), V(11, -3, 0)),
], False)
sketch11.addConstraint([
    Sketcher.Constraint("Coincident", 0, 2, 1, 1),
    Sketcher.Constraint("Coincident", 1, 2, 2, 1),
    Sketcher.Constraint("Coincident", 2, 2, 3, 1),
    Sketcher.Constraint("Coincident", 3, 2, 4, 1),
    Sketcher.Constraint("Coincident", 4, 2, 5, 1),
    Sketcher.Constraint("Coincident", 5, 2, 6, 1),
    Sketcher.Constraint("Coincident", 6, 2, 7, 1),
    Sketcher.Constraint("Coincident", 7, 2, 8, 1),
    Sketcher.Constraint("Coincident", 8, 2, 9, 1),
    Sketcher.Constraint("Coincident", 9, 2, 10, 1),
    Sketcher.Constraint("Coincident", 10, 2, 11, 1),
    Sketcher.Constraint("Coincident", 11, 2, 0, 1),
    Sketcher.Constraint("Horizontal", 0),
    Sketcher.Constraint("Vertical", 1),
    Sketcher.Constraint("Horizontal", 2),
    Sketcher.Constraint("Vertical", 3),
    Sketcher.Constraint("Horizontal", 4),
    Sketcher.Constraint("Vertical", 5),
    Sketcher.Constraint("Horizontal", 6),
    Sketcher.Constraint("Vertical", 7),
    Sketcher.Constraint("Horizontal", 8),
    Sketcher.Constraint("Vertical", 9),
    Sketcher.Constraint("Horizontal", 10),
    Sketcher.Constraint("Vertical", 11),
    Sketcher.Constraint("PointOnObject", 5, 2, -1),
    Sketcher.Constraint("Horizontal", 4, 2, 7, 2),
    Sketcher.Constraint("Horizontal", 2, 2, 9, 2),
    Sketcher.Constraint("Vertical", 1, 2, 4, 2),
    Sketcher.Constraint("Vertical", 7, 2, 10, 2),
    Sketcher.Constraint("Equal", 4, 8),
    Sketcher.Constraint("Equal", 10, 1),
    Sketcher.Constraint("Equal", 1, 3),
    Sketcher.Constraint("Equal", 3, 5),
    Sketcher.Constraint("DistanceX", 0, 1, 0, 2, 9.0),
    Sketcher.Constraint("DistanceX", 2, 1, 2, 2, 1.0),
    Sketcher.Constraint("DistanceX", -1, 1, 0, 2, 20.0),
])
pad5 = body.newObject("PartDesign::Pad", "Pad004")
pad5.Profile = sketch11
pad5.Length = 4

sketch12 = body.newObject("Sketcher::SketchObject", "Sketch011")
sketch12.AttachmentSupport = (doc.getObject("YZ_Plane"), [""])
sketch12.MapMode = "FlatFace"
sketch12.addGeometry([
    Part.LineSegment(V(4, -43.5, 0), V(1, -43.5, 0)),
    Part.LineSegment(V(1, -43.5, 0), V(1, -38.5, 0)),
    Part.LineSegment(V(1, -38.5, 0), V(4, -38.5, 0)),
    Part.LineSegment(V(4, -38.5, 0), V(4, -43.5, 0)),
], False)
sketch12.addConstraint([
    Sketcher.Constraint("Coincident", 0, 2, 1, 1),
    Sketcher.Constraint("Coincident", 1, 2, 2, 1),
    Sketcher.Constraint("Coincident", 2, 2, 3, 1),
    Sketcher.Constraint("Coincident", 3, 2, 0, 1),
    Sketcher.Constraint("Horizontal", 0),
    Sketcher.Constraint("Vertical", 1),
    Sketcher.Constraint("Horizontal", 2),
    Sketcher.Constraint("Vertical", 3),
    Sketcher.Constraint("DistanceX", 0, 2, 0, 1, 3.0),
    Sketcher.Constraint("DistanceY", 1, 1, 1, 2, 5.0),
    Sketcher.Constraint("DistanceX", -1, 1, 0, 2, 1.0),
    Sketcher.Constraint("DistanceY", 0, 2, -1, 1, 43.5),
])
pocket7 = body.newObject("PartDesign::Pocket", "Pocket006")
pocket7.Profile = sketch12
pocket7.Length = 8.5
pocket7.Reversed = True

sketch13 = body.newObject("Sketcher::SketchObject", "Sketch012")
sketch13.AttachmentSupport = (doc.getObject("XZ_Plane"), [""])
sketch13.MapMode = "FlatFace"
sketch13.AttachmentOffset = App.Placement(V(0, 0, 10), App.Rotation())
sketch13.addGeometry([
    Part.LineSegment(V(55, -3, 0), V(62.5, -3, 0)),
    Part.LineSegment(V(62.5, -3, 0), V(62.5, -2, 0)),
    Part.LineSegment(V(62.5, -2, 0), V(63.5, -2, 0)),
    Part.LineSegment(V(63.5, -2, 0), V(63.5, -1, 0)),
    Part.LineSegment(V(63.5, -1, 0), V(62.5, -1, 0)),
    Part.LineSegment(V(62.5, -1, 0), V(62.5, 0, 0)),
    Part.LineSegment(V(62.5, 0, 0), V(55, 0, 0)),
    Part.LineSegment(V(55, 0, 0), V(55, -1, 0)),
    Part.LineSegment(V(55, -1, 0), V(54, -1, 0)),
    Part.LineSegment(V(54, -1, 0), V(54, -2, 0)),
    Part.LineSegment(V(54, -2, 0), V(55, -2, 0)),
    Part.LineSegment(V(55, -2, 0), V(55, -3, 0)),
], False)
sketch13.addConstraint([
    Sketcher.Constraint("Coincident", 0, 2, 1, 1),
    Sketcher.Constraint("Coincident", 1, 2, 2, 1),
    Sketcher.Constraint("Coincident", 2, 2, 3, 1),
    Sketcher.Constraint("Coincident", 3, 2, 4, 1),
    Sketcher.Constraint("Coincident", 4, 2, 5, 1),
    Sketcher.Constraint("Coincident", 5, 2, 6, 1),
    Sketcher.Constraint("Coincident", 6, 2, 7, 1),
    Sketcher.Constraint("Coincident", 7, 2, 8, 1),
    Sketcher.Constraint("Coincident", 8, 2, 9, 1),
    Sketcher.Constraint("Coincident", 9, 2, 10, 1),
    Sketcher.Constraint("Coincident", 10, 2, 11, 1),
    Sketcher.Constraint("Coincident", 11, 2, 0, 1),
    Sketcher.Constraint("Horizontal", 0),
    Sketcher.Constraint("Vertical", 1),
    Sketcher.Constraint("Horizontal", 2),
    Sketcher.Constraint("Vertical", 3),
    Sketcher.Constraint("Horizontal", 4),
    Sketcher.Constraint("Vertical", 5),
    Sketcher.Constraint("Horizontal", 6),
    Sketcher.Constraint("Vertical", 7),
    Sketcher.Constraint("Horizontal", 8),
    Sketcher.Constraint("Vertical", 9),
    Sketcher.Constraint("Horizontal", 10),
    Sketcher.Constraint("Vertical", 11),
    Sketcher.Constraint("PointOnObject", 5, 2, -1),
    Sketcher.Constraint("Horizontal", 4, 2, 7, 2),
    Sketcher.Constraint("Horizontal", 2, 2, 9, 2),
    Sketcher.Constraint("Vertical", 1, 2, 4, 2),
    Sketcher.Constraint("Vertical", 7, 2, 10, 2),
    Sketcher.Constraint("Equal", 4, 8),
    Sketcher.Constraint("Equal", 10, 1),
    Sketcher.Constraint("Equal", 1, 3),
    Sketcher.Constraint("Equal", 3, 5),
    Sketcher.Constraint("DistanceX", 2, 1, 2, 2, 1.0),
    Sketcher.Constraint("DistanceX", 0, 1, 0, 2, 7.5),
    Sketcher.Constraint("DistanceX", -1, 1, 6, 2, 55.0),
])
pad6 = body.newObject("PartDesign::Pad", "Pad005")
pad6.Profile = sketch13
pad6.Length = 0.5

sketch14 = body.newObject("Sketcher::SketchObject", "Sketch013")
sketch14.AttachmentSupport = (doc.getObject("XZ_Plane"), [""])
sketch14.MapMode = "FlatFace"
sketch14.AttachmentOffset = App.Placement(V(0, 0, -4), App.Rotation())
sketch14.addGeometry([
    Part.LineSegment(V(5, -57.2, 0), V(5, -52.8, 0)),
    Part.LineSegment(V(5, -52.8, 0), V(11.5, -52.8, 0)),
    Part.LineSegment(V(11.5, -52.8, 0), V(11.5, -57.2, 0)),
    Part.LineSegment(V(11.5, -57.2, 0), V(5, -57.2, 0)),
], False)
sketch14.addConstraint([
    Sketcher.Constraint("Coincident", 0, 2, 1, 1),
    Sketcher.Constraint("Coincident", 1, 2, 2, 1),
    Sketcher.Constraint("Coincident", 2, 2, 3, 1),
    Sketcher.Constraint("Coincident", 3, 2, 0, 1),
    Sketcher.Constraint("Vertical", 0),
    Sketcher.Constraint("Horizontal", 1),
    Sketcher.Constraint("Vertical", 2),
    Sketcher.Constraint("Horizontal", 3),
    Sketcher.Constraint("DistanceX", 1, 1, 1, 2, 6.5),
    Sketcher.Constraint("DistanceY", 0, 1, 0, 2, 4.5),
    Sketcher.Constraint("DistanceX", -1, 1, 0, 2, 5.0),
    Sketcher.Constraint("DistanceY", 0, 2, -1, 1, 52.75),
])
pocket8 = body.newObject("PartDesign::Pocket", "Pocket007")
pocket8.Profile = sketch14
pocket8.Length = 1.75
pocket8.Reversed = True

sketch15 = body.newObject("Sketcher::SketchObject", "Sketch014")
sketch15.AttachmentSupport = (doc.getObject("XZ_Plane"), [""])
sketch15.MapMode = "FlatFace"
sketch15.AttachmentOffset = App.Placement(V(0, 0, 10), App.Rotation())
sketch15.addGeometry([
    Part.Circle(V(8.5, -55.8, 0), V(0, 0, 1), 1.8),
    Part.Circle(V(66.5, -55.8, 0), V(0, 0, 1), 1.8),
    Part.Circle(V(66.5, -6.5, 0), V(0, 0, 1), 1.8),
    Part.Circle(V(8.5, -6.5, 0), V(0, 0, 1), 1.8),
], False)
sketch15.addConstraint([
    Sketcher.Constraint("Equal", 0, 1),
    Sketcher.Constraint("Equal", 1, 2),
    Sketcher.Constraint("Equal", 2, 3),
    Sketcher.Constraint("Horizontal", 0, 3, 1, 3),
    Sketcher.Constraint("Horizontal", 2, 3, 3, 3),
    Sketcher.Constraint("Vertical", 1, 3, 2, 3),
    Sketcher.Constraint("Vertical", 0, 3, 3, 3),
    Sketcher.Constraint("Diameter", 0, 3.5),
    Sketcher.Constraint("DistanceX", 0, 3, 1, 3, 58.0),
    Sketcher.Constraint("DistanceX", -1, 1, 0, 3, 8.5),
    Sketcher.Constraint("DistanceY", 2, 3, -1, 1, 6.5),
    Sketcher.Constraint("DistanceY", 0, 3, -1, 1, 55.75),
])
pad7 = body.newObject("PartDesign::Pad", "Pad006")
pad7.Profile = sketch15
pad7.Length = 6.4

sketch16 = body.newObject("Sketcher::SketchObject", "Sketch015")
sketch16.AttachmentSupport = (doc.getObject("XZ_Plane"), [""])
sketch16.MapMode = "FlatFace"
sketch16.AttachmentOffset = App.Placement(V(0, 0, 16.4), App.Rotation())
sketch16.addGeometry([
    Part.Circle(V(8.5, -6.5, 0), V(0, 0, 1), 1.2),
    Part.Circle(V(8.5, -55.8, 0), V(0, 0, 1), 1.2),
    Part.Circle(V(66.5, -55.8, 0), V(0, 0, 1), 1.2),
    Part.Circle(V(66.5, -6.5, 0), V(0, 0, 1), 1.2),
], False)
sketch16.addConstraint([
    Sketcher.Constraint("Equal", 0, 1),
    Sketcher.Constraint("Equal", 1, 2),
    Sketcher.Constraint("Equal", 2, 3),
    Sketcher.Constraint("Horizontal", 1, 3, 2, 3),
    Sketcher.Constraint("Horizontal", 0, 3, 3, 3),
    Sketcher.Constraint("Vertical", 0, 3, 1, 3),
    Sketcher.Constraint("Vertical", 2, 3, 3, 3),
    Sketcher.Constraint("Diameter", 0, 2.5),
    Sketcher.Constraint("DistanceX", 1, 3, 2, 3, 58.0),
    Sketcher.Constraint("DistanceX", -1, 1, 0, 3, 8.5),
    Sketcher.Constraint("DistanceY", 0, 3, -1, 1, 6.5),
    Sketcher.Constraint("DistanceY", 1, 3, -1, 1, 55.75),
])
pocket9 = body.newObject("PartDesign::Pocket", "Pocket008")
pocket9.Profile = sketch16
pocket9.Length = 4

doc.recompute()
